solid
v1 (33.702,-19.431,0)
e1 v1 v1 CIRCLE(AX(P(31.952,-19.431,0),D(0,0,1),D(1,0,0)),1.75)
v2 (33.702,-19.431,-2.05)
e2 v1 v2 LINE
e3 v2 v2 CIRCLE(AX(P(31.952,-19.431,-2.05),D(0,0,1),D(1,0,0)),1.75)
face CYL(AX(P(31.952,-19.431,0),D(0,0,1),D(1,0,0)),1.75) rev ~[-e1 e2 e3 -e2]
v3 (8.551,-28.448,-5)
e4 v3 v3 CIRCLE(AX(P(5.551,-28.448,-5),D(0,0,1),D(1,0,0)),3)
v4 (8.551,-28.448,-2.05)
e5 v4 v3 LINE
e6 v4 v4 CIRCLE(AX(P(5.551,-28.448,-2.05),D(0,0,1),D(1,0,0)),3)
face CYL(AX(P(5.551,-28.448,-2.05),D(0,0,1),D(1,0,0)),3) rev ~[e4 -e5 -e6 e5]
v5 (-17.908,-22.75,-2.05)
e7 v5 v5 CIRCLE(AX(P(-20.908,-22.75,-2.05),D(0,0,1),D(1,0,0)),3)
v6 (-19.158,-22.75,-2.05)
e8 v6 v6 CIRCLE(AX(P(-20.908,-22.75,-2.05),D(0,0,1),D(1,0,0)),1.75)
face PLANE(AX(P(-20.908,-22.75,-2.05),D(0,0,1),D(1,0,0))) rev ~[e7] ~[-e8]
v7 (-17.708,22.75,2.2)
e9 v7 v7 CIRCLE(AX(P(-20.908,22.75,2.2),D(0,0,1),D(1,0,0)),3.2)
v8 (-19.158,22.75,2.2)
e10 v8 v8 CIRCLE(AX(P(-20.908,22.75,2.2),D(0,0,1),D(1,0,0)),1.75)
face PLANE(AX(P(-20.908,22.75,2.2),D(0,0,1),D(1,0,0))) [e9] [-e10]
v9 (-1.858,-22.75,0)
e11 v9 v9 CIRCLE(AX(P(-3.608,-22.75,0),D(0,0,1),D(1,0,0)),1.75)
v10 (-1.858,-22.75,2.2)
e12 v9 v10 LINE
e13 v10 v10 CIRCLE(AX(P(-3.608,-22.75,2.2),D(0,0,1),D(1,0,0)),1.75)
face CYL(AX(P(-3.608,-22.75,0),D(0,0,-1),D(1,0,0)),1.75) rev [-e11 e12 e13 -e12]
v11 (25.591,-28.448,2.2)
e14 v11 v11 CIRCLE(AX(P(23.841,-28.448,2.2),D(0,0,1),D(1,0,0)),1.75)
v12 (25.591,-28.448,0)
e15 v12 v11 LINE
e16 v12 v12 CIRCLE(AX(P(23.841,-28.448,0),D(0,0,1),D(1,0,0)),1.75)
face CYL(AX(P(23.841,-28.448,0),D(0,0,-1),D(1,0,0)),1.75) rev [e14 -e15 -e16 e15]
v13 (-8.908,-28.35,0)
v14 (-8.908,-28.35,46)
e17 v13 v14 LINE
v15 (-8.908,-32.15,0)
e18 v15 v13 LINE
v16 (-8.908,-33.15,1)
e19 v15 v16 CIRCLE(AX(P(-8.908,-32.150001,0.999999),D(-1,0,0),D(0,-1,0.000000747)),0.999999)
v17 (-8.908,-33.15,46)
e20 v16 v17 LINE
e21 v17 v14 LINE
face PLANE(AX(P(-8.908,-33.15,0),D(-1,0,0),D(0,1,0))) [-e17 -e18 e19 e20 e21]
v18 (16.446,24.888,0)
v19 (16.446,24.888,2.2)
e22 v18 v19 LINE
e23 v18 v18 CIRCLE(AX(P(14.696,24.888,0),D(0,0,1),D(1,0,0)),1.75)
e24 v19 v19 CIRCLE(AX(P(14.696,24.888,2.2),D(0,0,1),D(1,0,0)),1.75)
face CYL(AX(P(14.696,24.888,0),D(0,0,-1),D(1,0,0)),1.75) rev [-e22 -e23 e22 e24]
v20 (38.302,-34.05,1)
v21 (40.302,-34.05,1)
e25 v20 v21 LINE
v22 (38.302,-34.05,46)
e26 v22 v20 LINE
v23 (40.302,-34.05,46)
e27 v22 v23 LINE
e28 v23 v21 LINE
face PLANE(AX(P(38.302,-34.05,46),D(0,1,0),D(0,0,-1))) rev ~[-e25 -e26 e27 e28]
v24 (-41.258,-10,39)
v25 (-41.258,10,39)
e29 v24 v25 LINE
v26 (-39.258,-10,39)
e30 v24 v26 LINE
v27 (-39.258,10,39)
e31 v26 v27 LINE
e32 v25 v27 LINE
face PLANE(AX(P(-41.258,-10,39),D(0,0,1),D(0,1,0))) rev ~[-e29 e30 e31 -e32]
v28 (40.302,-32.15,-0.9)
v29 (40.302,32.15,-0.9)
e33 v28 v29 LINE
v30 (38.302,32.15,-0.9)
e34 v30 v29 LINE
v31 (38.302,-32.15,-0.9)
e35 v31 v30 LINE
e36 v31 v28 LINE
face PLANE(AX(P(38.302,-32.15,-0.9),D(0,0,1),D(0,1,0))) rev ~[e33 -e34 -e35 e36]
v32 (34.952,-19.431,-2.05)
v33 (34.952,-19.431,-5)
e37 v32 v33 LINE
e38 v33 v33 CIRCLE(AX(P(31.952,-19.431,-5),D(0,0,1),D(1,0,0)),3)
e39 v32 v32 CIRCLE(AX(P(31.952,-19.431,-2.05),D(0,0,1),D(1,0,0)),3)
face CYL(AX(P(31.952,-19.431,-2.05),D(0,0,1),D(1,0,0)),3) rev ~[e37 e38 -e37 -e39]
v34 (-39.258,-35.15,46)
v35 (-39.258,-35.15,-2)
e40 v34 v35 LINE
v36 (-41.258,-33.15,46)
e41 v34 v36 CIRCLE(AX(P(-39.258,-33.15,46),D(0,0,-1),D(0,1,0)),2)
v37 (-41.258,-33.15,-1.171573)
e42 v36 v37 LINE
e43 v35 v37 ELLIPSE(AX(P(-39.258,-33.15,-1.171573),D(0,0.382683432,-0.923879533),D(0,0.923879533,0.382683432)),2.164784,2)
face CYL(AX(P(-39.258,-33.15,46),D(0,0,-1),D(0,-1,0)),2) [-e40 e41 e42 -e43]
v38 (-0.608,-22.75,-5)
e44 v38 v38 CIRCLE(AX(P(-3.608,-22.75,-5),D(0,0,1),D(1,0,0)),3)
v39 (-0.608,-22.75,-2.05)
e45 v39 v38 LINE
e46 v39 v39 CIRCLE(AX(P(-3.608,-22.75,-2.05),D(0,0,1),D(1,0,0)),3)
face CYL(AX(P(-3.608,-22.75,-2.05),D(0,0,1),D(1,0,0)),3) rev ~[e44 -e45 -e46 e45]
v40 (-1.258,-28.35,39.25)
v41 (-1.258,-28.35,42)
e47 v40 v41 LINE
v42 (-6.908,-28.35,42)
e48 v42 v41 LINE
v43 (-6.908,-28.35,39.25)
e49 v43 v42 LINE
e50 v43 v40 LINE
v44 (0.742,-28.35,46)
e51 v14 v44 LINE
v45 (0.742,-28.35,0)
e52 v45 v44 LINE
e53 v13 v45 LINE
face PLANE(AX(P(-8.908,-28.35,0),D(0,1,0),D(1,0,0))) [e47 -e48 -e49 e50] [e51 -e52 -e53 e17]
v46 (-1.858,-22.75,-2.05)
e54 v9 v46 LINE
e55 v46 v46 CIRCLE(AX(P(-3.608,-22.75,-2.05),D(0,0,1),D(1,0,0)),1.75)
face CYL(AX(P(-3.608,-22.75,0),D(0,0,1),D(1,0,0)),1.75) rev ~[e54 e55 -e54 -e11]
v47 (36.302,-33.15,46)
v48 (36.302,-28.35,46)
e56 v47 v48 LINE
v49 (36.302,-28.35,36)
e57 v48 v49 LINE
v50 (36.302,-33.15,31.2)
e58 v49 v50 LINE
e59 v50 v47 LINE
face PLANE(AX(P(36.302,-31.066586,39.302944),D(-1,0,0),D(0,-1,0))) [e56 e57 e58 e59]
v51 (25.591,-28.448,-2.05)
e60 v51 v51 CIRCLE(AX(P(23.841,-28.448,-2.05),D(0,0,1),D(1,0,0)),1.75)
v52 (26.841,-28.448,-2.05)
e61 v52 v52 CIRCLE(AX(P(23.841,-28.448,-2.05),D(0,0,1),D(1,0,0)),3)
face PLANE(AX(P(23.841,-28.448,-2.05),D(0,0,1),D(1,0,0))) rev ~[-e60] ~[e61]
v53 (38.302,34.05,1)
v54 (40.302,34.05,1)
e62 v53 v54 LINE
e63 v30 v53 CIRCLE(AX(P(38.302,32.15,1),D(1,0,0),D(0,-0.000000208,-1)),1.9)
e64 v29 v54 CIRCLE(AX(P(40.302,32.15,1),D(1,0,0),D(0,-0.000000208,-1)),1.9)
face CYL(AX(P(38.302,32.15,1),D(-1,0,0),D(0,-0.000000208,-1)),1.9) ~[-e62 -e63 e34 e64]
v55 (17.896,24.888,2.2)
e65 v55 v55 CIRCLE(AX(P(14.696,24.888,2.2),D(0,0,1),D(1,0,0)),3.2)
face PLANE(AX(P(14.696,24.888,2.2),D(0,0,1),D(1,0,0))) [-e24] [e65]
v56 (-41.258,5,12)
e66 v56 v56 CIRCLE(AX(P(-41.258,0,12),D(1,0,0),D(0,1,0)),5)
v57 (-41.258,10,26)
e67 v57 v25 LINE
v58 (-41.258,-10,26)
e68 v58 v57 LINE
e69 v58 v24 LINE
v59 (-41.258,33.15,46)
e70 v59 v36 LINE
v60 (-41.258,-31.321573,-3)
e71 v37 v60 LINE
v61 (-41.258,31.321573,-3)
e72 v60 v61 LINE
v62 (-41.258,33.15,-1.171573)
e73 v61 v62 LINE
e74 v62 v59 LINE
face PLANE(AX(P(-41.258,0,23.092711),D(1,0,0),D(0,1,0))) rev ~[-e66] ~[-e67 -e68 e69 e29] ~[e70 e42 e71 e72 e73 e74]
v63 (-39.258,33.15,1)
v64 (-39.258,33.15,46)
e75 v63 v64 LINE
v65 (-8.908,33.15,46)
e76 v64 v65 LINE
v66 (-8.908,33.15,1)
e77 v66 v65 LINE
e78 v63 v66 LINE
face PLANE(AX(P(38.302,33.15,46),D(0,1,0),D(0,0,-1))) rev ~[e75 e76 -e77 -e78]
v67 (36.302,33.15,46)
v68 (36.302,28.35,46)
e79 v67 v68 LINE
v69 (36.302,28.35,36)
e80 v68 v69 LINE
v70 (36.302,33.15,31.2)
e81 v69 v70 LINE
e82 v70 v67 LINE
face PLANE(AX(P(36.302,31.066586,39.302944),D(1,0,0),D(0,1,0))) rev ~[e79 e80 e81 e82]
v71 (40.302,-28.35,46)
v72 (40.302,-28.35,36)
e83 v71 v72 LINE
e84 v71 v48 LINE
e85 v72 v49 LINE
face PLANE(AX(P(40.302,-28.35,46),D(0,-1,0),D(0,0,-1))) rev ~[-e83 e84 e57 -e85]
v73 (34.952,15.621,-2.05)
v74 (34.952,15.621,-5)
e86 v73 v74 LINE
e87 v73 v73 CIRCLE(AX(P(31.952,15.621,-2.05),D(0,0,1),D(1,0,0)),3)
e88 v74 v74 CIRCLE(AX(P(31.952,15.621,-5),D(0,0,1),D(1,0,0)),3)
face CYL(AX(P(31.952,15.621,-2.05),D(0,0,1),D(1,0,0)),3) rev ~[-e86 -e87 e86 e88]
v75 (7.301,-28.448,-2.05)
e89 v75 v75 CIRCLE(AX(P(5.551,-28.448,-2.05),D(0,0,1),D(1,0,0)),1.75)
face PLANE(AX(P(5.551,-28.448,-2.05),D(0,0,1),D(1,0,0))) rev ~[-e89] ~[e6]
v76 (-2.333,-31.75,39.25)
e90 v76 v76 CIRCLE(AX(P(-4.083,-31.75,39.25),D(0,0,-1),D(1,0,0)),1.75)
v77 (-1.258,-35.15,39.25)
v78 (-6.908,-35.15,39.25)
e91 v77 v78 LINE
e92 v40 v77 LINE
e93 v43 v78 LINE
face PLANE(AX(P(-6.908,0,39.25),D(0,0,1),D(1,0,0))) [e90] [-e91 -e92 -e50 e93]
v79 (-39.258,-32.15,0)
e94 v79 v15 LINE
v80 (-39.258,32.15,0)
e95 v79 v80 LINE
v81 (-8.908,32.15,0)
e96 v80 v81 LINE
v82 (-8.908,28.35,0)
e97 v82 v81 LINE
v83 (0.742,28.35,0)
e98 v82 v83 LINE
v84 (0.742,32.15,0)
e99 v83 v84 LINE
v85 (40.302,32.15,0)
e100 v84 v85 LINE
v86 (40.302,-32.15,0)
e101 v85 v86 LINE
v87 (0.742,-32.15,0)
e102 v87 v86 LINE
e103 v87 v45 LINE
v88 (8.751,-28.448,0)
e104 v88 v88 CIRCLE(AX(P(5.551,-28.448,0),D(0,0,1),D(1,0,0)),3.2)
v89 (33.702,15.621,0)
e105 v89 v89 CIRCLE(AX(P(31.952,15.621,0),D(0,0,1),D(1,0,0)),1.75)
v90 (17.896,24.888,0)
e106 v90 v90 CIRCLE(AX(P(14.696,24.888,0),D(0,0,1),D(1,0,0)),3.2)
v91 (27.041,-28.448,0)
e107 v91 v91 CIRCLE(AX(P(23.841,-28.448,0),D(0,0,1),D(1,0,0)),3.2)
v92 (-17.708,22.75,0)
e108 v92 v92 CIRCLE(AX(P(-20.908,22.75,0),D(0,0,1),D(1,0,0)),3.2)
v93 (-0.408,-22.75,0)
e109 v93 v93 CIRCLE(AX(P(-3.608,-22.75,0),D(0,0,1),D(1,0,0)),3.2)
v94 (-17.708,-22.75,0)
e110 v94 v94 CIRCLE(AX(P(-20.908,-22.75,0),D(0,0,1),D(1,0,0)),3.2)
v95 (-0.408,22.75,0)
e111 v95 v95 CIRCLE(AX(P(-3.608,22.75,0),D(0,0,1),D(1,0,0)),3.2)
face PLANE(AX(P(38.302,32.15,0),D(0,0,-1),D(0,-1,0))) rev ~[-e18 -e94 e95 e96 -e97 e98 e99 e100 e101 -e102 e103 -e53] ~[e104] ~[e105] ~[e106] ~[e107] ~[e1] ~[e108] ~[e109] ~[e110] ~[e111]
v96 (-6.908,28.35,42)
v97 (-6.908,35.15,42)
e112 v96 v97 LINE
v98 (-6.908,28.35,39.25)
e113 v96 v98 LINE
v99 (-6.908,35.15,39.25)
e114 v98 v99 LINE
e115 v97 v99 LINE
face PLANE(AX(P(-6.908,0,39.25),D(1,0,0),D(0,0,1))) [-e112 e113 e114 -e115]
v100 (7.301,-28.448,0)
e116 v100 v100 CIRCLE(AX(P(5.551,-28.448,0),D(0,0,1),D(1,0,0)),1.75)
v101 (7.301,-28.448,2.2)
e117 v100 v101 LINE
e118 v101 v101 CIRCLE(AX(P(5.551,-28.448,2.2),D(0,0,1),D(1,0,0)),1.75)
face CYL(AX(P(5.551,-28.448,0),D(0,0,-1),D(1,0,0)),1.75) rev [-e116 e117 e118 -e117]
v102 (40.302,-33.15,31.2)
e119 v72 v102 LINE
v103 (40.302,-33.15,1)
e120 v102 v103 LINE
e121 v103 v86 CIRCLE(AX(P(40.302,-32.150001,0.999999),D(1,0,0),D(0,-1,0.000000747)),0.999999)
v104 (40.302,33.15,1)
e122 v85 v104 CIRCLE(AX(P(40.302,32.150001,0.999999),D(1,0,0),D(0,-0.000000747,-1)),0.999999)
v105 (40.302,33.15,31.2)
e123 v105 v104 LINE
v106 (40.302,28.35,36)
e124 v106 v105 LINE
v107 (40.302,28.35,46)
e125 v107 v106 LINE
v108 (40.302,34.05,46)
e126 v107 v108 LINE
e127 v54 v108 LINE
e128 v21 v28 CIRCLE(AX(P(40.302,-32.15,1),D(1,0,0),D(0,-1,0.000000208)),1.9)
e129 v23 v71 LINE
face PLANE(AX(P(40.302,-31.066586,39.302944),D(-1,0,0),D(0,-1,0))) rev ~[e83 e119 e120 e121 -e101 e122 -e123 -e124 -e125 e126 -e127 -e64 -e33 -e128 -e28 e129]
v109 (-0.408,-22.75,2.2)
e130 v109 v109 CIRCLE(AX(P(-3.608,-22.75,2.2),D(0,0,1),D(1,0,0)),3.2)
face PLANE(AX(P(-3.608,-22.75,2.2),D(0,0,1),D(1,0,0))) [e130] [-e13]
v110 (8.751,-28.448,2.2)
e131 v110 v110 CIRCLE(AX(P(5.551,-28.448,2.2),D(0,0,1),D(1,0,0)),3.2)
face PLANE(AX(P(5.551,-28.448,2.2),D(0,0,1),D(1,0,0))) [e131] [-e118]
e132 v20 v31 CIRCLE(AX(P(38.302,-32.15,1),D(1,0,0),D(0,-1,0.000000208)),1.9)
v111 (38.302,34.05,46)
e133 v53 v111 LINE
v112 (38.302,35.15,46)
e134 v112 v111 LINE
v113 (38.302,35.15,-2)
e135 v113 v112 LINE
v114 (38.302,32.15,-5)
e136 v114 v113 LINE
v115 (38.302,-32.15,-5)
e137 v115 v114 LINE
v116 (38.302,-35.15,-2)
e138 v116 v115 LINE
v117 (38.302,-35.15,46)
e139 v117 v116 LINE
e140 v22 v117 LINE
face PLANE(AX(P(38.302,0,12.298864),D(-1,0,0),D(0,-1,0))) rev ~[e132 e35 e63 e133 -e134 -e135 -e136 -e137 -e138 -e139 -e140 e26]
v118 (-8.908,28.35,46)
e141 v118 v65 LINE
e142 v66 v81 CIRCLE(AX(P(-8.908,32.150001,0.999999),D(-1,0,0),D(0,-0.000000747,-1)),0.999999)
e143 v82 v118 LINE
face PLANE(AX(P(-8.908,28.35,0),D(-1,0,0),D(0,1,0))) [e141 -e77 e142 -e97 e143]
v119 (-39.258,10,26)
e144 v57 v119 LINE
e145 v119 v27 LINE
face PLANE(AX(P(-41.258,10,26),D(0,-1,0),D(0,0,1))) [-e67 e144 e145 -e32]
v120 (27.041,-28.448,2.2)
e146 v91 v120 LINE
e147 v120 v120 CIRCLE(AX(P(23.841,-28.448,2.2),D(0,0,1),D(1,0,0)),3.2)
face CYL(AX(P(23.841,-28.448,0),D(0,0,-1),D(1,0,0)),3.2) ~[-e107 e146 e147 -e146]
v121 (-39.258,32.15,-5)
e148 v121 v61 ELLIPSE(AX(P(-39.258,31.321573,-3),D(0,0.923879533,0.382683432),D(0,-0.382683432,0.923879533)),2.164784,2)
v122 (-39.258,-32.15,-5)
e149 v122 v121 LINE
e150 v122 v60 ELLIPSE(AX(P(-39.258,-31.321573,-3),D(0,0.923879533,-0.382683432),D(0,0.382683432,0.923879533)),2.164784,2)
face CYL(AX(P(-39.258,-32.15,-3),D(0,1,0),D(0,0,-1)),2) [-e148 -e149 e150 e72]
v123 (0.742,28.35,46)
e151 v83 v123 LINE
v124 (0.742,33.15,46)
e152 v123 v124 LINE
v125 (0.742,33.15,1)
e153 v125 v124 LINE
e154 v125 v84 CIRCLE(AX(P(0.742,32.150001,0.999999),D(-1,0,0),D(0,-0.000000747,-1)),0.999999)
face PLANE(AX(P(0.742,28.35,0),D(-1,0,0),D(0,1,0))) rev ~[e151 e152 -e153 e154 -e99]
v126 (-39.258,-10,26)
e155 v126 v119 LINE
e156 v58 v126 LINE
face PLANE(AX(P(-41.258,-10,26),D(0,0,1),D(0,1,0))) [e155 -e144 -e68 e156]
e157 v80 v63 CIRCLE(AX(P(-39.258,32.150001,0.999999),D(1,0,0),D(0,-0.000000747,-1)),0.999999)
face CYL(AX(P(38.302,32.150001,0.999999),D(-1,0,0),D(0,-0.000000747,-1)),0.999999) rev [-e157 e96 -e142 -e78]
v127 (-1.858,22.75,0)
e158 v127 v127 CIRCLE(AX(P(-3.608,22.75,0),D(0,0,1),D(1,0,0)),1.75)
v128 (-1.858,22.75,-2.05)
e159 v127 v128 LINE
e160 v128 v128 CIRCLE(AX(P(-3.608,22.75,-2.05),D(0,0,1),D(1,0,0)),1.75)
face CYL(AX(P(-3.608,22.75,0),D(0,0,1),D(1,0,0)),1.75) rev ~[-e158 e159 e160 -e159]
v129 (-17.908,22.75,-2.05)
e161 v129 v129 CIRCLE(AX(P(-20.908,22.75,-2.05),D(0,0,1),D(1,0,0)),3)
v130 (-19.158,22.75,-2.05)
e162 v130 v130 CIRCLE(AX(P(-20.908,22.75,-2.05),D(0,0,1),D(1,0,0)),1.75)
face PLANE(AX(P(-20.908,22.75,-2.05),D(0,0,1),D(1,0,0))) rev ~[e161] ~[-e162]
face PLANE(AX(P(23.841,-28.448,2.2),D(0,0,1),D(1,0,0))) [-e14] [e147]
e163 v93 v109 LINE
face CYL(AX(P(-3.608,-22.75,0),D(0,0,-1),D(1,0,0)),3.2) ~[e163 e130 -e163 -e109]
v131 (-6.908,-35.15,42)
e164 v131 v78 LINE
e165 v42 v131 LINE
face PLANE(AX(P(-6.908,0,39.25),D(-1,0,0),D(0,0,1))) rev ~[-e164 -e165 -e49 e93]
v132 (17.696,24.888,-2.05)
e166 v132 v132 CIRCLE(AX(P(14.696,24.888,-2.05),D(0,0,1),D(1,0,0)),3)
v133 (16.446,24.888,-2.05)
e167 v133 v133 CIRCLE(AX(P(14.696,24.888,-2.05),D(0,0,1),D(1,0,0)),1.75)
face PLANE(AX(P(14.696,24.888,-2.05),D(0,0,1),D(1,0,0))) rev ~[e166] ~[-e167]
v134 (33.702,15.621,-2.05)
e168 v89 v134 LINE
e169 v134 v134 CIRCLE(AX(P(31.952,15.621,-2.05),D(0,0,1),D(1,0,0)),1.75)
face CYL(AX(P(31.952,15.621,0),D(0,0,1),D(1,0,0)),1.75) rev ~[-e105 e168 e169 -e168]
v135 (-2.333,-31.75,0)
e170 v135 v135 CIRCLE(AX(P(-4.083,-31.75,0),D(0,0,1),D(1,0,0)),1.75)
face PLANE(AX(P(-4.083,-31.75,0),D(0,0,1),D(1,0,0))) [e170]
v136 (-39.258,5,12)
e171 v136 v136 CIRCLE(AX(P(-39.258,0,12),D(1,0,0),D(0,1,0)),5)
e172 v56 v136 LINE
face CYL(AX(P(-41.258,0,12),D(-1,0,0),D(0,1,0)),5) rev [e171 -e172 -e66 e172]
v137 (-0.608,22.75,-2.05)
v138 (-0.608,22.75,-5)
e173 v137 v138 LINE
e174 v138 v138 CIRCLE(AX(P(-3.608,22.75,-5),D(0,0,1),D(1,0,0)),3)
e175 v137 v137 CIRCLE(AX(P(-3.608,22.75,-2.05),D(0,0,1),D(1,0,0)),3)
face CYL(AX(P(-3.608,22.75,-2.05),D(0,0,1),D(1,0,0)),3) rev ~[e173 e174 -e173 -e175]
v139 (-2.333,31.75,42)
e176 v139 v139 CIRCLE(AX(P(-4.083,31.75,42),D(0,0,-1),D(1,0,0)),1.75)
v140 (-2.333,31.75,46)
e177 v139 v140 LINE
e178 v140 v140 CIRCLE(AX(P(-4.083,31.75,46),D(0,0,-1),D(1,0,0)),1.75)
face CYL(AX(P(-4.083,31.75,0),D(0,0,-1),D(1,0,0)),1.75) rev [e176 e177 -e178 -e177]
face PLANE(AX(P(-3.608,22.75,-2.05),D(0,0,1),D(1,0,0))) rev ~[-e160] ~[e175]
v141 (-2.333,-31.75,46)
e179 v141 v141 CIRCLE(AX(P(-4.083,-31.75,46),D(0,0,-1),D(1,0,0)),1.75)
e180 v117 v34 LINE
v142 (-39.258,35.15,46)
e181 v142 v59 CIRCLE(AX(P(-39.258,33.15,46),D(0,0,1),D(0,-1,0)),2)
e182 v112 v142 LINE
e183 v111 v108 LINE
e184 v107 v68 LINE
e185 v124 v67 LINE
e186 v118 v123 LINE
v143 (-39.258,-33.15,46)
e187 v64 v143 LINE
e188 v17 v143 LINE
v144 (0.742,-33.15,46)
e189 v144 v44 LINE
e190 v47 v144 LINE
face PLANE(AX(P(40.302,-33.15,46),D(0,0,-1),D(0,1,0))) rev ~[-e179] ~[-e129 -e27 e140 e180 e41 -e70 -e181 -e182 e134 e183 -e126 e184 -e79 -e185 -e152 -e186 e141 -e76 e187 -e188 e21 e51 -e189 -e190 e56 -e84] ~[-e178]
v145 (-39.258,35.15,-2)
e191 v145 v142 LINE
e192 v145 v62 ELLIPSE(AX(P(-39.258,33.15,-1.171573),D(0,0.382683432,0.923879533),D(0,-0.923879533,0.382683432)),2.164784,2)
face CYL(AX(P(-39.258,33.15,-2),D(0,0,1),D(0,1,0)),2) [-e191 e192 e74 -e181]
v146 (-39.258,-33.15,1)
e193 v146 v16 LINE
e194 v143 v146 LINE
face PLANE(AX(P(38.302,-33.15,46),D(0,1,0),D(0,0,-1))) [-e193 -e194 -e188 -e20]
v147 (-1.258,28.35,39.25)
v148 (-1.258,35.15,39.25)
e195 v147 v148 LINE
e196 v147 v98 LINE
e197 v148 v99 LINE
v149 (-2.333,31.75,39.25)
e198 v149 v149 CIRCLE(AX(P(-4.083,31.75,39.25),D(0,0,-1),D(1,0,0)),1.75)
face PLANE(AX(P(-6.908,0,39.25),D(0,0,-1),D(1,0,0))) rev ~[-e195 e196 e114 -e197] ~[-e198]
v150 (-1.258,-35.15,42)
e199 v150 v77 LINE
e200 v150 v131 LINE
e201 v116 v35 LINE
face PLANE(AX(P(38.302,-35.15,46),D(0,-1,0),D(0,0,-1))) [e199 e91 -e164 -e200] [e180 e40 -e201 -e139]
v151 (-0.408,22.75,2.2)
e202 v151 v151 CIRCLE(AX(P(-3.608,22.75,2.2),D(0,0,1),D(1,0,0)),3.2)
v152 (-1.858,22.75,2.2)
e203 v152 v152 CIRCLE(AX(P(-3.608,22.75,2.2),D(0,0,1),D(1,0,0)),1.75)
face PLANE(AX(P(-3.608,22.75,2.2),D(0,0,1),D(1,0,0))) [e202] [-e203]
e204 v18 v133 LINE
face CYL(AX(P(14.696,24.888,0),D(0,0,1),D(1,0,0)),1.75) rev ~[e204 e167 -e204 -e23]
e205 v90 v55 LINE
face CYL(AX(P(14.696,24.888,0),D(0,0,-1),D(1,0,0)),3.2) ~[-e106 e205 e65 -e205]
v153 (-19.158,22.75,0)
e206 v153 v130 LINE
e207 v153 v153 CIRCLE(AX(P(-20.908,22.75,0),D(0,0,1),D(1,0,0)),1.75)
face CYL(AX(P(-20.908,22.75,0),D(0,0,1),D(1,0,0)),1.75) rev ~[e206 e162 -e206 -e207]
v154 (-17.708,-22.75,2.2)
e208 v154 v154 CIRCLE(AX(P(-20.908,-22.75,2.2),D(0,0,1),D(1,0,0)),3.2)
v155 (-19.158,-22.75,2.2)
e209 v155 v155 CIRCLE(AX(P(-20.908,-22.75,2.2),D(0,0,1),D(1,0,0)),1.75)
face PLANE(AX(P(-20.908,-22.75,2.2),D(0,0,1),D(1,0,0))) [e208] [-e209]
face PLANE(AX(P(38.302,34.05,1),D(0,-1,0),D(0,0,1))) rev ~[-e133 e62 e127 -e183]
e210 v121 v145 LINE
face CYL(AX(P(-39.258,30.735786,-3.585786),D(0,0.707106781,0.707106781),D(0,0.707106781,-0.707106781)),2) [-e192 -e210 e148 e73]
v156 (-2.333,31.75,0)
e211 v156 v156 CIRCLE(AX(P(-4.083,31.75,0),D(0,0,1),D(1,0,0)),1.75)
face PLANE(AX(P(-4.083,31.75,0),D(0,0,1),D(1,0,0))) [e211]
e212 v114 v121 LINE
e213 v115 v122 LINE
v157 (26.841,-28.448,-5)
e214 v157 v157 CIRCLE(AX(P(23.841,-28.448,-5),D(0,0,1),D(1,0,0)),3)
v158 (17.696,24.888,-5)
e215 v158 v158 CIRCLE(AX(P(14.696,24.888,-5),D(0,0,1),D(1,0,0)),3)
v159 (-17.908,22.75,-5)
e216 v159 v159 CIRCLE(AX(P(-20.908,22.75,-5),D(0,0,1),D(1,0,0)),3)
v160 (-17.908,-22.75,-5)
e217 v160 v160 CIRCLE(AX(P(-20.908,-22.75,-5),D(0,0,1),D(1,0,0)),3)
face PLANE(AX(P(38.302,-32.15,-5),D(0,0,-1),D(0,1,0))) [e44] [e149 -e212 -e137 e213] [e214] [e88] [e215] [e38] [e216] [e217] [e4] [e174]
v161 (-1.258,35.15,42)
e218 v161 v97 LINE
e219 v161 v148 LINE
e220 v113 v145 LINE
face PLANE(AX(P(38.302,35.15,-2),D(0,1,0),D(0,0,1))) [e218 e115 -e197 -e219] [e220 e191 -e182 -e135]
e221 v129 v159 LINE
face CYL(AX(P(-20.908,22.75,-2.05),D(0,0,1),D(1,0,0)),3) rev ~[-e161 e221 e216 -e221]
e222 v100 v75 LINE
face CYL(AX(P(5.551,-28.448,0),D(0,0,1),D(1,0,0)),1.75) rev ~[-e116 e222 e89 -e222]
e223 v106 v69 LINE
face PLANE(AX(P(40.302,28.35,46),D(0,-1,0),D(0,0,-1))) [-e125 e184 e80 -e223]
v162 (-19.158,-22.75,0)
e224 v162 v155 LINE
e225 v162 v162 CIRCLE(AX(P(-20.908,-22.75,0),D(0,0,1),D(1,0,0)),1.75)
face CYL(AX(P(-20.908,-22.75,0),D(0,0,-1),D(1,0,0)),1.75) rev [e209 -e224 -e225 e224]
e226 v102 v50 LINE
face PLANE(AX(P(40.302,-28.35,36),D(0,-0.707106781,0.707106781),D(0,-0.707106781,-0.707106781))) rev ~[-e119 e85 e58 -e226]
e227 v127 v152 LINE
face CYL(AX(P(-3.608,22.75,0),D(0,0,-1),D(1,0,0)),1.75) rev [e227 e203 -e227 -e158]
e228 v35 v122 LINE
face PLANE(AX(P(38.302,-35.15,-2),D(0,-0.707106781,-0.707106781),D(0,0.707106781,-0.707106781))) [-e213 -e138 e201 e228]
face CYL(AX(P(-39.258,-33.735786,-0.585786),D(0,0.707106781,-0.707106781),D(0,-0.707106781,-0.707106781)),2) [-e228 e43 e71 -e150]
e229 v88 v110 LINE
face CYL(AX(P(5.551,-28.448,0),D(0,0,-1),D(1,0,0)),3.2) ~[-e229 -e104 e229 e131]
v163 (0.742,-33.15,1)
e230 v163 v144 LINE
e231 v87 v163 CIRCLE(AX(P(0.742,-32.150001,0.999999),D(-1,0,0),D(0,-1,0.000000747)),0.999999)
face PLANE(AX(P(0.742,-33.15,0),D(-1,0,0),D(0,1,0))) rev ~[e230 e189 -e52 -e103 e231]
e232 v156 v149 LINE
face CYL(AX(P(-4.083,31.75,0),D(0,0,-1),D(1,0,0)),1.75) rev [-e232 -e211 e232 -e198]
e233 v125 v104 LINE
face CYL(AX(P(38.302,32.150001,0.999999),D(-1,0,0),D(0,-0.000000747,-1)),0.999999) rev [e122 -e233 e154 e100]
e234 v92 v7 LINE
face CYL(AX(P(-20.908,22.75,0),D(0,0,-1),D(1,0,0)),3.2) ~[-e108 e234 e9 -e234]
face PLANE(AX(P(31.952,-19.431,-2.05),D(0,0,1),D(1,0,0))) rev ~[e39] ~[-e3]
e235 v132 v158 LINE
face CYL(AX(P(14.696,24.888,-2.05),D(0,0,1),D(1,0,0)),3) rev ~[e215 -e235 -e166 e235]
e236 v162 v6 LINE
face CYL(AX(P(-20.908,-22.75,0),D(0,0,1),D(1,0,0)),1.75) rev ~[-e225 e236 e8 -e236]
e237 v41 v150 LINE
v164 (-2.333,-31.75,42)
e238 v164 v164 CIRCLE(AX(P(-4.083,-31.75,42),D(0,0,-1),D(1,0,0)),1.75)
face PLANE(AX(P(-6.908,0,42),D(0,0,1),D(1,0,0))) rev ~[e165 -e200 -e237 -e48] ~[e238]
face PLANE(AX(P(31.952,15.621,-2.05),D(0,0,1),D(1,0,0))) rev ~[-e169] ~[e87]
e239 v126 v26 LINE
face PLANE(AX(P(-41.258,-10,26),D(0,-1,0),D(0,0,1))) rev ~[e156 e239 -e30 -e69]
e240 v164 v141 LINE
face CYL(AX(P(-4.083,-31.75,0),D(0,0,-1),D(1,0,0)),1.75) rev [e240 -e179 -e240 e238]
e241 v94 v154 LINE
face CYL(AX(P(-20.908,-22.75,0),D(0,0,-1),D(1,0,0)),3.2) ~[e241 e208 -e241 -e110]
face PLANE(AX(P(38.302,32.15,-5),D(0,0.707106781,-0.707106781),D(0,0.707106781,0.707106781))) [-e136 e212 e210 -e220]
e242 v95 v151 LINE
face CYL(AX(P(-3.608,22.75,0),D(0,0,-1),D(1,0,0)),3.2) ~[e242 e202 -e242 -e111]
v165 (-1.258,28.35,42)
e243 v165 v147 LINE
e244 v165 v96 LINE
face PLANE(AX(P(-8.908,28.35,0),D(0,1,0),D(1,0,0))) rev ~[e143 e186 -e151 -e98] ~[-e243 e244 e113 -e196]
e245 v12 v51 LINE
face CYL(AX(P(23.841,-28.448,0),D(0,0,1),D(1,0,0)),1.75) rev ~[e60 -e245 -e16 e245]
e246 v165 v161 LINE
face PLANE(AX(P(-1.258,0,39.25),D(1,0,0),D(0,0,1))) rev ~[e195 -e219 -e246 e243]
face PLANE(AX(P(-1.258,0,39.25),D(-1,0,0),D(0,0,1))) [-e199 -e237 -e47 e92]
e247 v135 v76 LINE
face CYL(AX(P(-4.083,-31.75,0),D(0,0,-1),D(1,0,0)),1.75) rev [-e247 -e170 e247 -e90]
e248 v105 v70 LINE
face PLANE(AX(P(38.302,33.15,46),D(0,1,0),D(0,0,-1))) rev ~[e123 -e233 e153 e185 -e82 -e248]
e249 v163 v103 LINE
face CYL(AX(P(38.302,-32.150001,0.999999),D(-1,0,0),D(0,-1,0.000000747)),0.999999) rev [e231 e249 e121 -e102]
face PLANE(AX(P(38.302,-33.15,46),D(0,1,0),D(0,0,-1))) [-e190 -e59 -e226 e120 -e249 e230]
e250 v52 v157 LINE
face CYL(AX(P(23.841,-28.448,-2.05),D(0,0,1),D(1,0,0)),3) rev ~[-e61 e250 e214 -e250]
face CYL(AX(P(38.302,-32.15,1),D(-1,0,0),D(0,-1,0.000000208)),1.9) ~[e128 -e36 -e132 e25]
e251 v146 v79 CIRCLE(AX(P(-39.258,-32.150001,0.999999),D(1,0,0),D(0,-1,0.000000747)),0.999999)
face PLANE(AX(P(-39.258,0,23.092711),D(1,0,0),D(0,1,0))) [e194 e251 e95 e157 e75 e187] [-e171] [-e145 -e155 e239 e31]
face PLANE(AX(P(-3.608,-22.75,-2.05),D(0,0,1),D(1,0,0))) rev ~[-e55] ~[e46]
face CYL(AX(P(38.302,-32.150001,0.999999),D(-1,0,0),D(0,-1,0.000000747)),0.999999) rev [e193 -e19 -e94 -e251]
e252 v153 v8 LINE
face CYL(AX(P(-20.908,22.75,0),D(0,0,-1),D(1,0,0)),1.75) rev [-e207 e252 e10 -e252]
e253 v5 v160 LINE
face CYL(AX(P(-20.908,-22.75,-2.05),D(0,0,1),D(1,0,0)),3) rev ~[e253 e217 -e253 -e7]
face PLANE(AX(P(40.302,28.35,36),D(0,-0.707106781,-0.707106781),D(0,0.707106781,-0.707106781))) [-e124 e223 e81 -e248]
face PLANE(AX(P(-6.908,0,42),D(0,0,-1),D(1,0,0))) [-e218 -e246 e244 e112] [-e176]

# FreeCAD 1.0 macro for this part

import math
import FreeCAD as App
import Part
import Sketcher
from FreeCAD import Vector


def edges_at(feature, points):
    """Names of the edges that pass closest to the given points."""
    edges = feature.Shape.Edges
    near = lambda p: min(range(len(edges)), key=lambda i: edges[i].distToShape(Part.Vertex(*p))[0])
    return sorted({f"Edge{near(p) + 1}" for p in points})


def add_polygon(sketch, points):
    """Adds a closed chain of lines whose ends are joined by coincident constraints."""
    first, n = sketch.GeometryCount, len(points)
    for a, b in zip(points, points[1:] + points[:1]):
        sketch.addGeometry(Part.LineSegment(App.Vector(*a, 0), App.Vector(*b, 0)), False)
    for i in range(n):
        sketch.addConstraint(Sketcher.Constraint("Coincident", first + i, 2, first + (i + 1) % n, 1))

doc = App.newDocument("Part")
body = doc.addObject("PartDesign::Body", "Body")

# Sketch on YZ plane
sketch1 = body.newObject("Sketcher::SketchObject", "Sketch")
sketch1.AttachmentSupport = (doc.getObject("YZ_Plane"), [""])
sketch1.MapMode = "FlatFace"
sketch1.AttachmentOffset = App.Placement(Vector(0, 0, 38.302), App.Rotation())
sketch1.addGeometry([
    Part.ArcOfCircle(Part.Circle(Vector(-32.150001, 0.999999, 0), Vector(0, 0, 1), 0.999999), math.radians(179.999957), math.radians(270.000043)),  # 0
    Part.LineSegment(Vector(-33.15, 1, 0), Vector(-33.15, 46, 0)),  # 1
    Part.LineSegment(Vector(-33.15, 46, 0), Vector(-35.15, 46, 0)),  # 2
    Part.LineSegment(Vector(-35.15, 46, 0), Vector(-35.15, -2, 0)),  # 3
    Part.LineSegment(Vector(-35.15, -2, 0), Vector(-32.15, -5, 0)),  # 4
    Part.LineSegment(Vector(-32.15, -5, 0), Vector(32.15, -5, 0)),  # 5
    Part.LineSegment(Vector(32.15, -5, 0), Vector(35.15, -2, 0)),  # 6
    Part.LineSegment(Vector(35.15, -2, 0), Vector(35.15, 46, 0)),  # 7
    Part.LineSegment(Vector(35.15, 46, 0), Vector(33.15, 46, 0)),  # 8
    Part.LineSegment(Vector(33.15, 46, 0), Vector(33.15, 1, 0)),  # 9
    Part.ArcOfCircle(Part.Circle(Vector(32.150001, 0.999999, 0), Vector(0, 0, 1), 0.999999), math.radians(-90.000043), math.radians(0.000043)),  # 10
    Part.LineSegment(Vector(32.15, 0, 0), Vector(-32.15, 0, 0)),  # 11
], False)
sketch1.addConstraint([
    Sketcher.Constraint("Tangent", 0, 1, 1, 1),
    Sketcher.Constraint("Coincident", 1, 2, 2, 1),
    Sketcher.Constraint("Coincident", 2, 2, 3, 1),
    Sketcher.Constraint("Coincident", 3, 2, 4, 1),
    Sketcher.Constraint("Coincident", 4, 2, 5, 1),
    Sketcher.Constraint("Coincident", 5, 2, 6, 1),
    Sketcher.Constraint("Coincident", 6, 2, 7, 1),
    Sketcher.Constraint("Coincident", 7, 2, 8, 1),
    Sketcher.Constraint("Coincident", 8, 2, 9, 1),
    Sketcher.Constraint("Tangent", 9, 2, 10, 2),
    Sketcher.Constraint("Tangent", 10, 1, 11, 1),
    Sketcher.Constraint("Tangent", 11, 2, 0, 2),
    Sketcher.Constraint("Vertical", 1),
    Sketcher.Constraint("Horizontal", 2),
    Sketcher.Constraint("Vertical", 3),
    Sketcher.Constraint("Horizontal", 5),
    Sketcher.Constraint("Vertical", 7),
    Sketcher.Constraint("Horizontal", 8),
    Sketcher.Constraint("Vertical", 9),
    Sketcher.Constraint("Horizontal", 11),
    Sketcher.Constraint("Equal", 0, 10),
    Sketcher.Constraint("Symmetric", 10, 1, 11, 2, -1, 1),
    Sketcher.Constraint("Symmetric", 3, 2, 6, 2, -2),
    Sketcher.Constraint("Perpendicular", 4, 6),
    Sketcher.Constraint("Horizontal", 2, 2, 7, 2),
    Sketcher.Constraint("Vertical", 0, 3, 4, 2),
    Sketcher.Constraint("Vertical", 10, 3, 5, 2),
    Sketcher.Constraint("Radius", 0, 0.999999),
    Sketcher.Constraint("DistanceX", 2, 2, 2, 1, 2.0),
    Sketcher.Constraint("DistanceY", 1, 1, 1, 2, 45.0),
    Sketcher.Constraint("DistanceY", 3, 2, 3, 1, 48.0),
    Sketcher.Constraint("DistanceX", 5, 1, 5, 2, 64.3),
])
pad1 = body.newObject("PartDesign::Pad", "Pad")
pad1.Profile = sketch1
pad1.Length = 79.56
pad1.Reversed = True

# Sketch on YZ plane
sketch2 = body.newObject("Sketcher::SketchObject", "Sketch001")
sketch2.AttachmentSupport = (doc.getObject("YZ_Plane"), [""])
sketch2.MapMode = "FlatFace"
sketch2.AttachmentOffset = App.Placement(Vector(0, 0, 38.302), App.Rotation())
sketch2.addGeometry([
    Part.ArcOfCircle(Part.Circle(Vector(-32.15, 1, 0), Vector(0, 0, 1), 1.9), math.radians(179.999988), math.radians(270.000012)),  # 0
    Part.LineSegment(Vector(-32.15, -0.9, 0), Vector(32.15, -0.9, 0)),  # 1
    Part.ArcOfCircle(Part.Circle(Vector(32.15, 1, 0), Vector(0, 0, 1), 1.9), math.radians(-90.000012), math.radians(0.000012)),  # 2
    Part.LineSegment(Vector(34.05, 1, 0), Vector(34.05, 46, 0)),  # 3
    Part.LineSegment(Vector(34.05, 46, 0), Vector(33.15, 46, 0)),  # 4
    Part.LineSegment(Vector(33.15, 46, 0), Vector(33.15, 1, 0)),  # 5
    Part.ArcOfCircle(Part.Circle(Vector(32.150001, 0.999999, 0), Vector(0, 0, 1), 0.999999), math.radians(-90.000043), math.radians(0.000043)),  # 6
    Part.LineSegment(Vector(32.15, 0, 0), Vector(-32.15, 0, 0)),  # 7
    Part.ArcOfCircle(Part.Circle(Vector(-32.150001, 0.999999, 0), Vector(0, 0, 1), 0.999999), math.radians(179.999957), math.radians(270.000043)),  # 8
    Part.LineSegment(Vector(-33.15, 1, 0), Vector(-33.15, 46, 0)),  # 9
    Part.LineSegment(Vector(-33.15, 46, 0), Vector(-34.05, 46, 0)),  # 10
    Part.LineSegment(Vector(-34.05, 46, 0), Vector(-34.05, 1, 0)),  # 11
], False)
sketch2.addConstraint([
    Sketcher.Constraint("Tangent", 0, 2, 1, 1),
    Sketcher.Constraint("Tangent", 1, 2, 2, 1),
    Sketcher.Constraint("Tangent", 2, 2, 3, 1),
    Sketcher.Constraint("Coincident", 3, 2, 4, 1),
    Sketcher.Constraint("Coincident", 4, 2, 5, 1),
    Sketcher.Constraint("Tangent", 5, 2, 6, 2),
    Sketcher.Constraint("Tangent", 6, 1, 7, 1),
    Sketcher.Constraint("Tangent", 7, 2, 8, 2),
    Sketcher.Constraint("Tangent", 8, 1, 9, 1),
    Sketcher.Constraint("Coincident", 9, 2, 10, 1),
    Sketcher.Constraint("Coincident", 10, 2, 11, 1),
    Sketcher.Constraint("Tangent", 11, 2, 0, 1),
    Sketcher.Constraint("Horizontal", 1),
    Sketcher.Constraint("Vertical", 3),
    Sketcher.Constraint("Horizontal", 4),
    Sketcher.Constraint("Vertical", 5),
    Sketcher.Constraint("Horizontal", 7),
    Sketcher.Constraint("Vertical", 9),
    Sketcher.Constraint("Horizontal", 10),
    Sketcher.Constraint("Vertical", 11),
    Sketcher.Constraint("Coincident", 6, 3, 2, 3),
    Sketcher.Constraint("Coincident", 8, 3, 0, 3),
    Sketcher.Constraint("Equal", 0, 2),
    Sketcher.Constraint("Symmetric", 6, 1, 7, 2, -1, 1),
    Sketcher.Constraint("Horizontal", 4, 2, 9, 2),
    Sketcher.Constraint("Radius", 6, 0.999999),
    Sketcher.Constraint("Radius", 0, 1.9),
    Sketcher.Constraint("DistanceY", 3, 1, 3, 2, 45.0),
    Sketcher.Constraint("DistanceX", 1, 1, 1, 2, 64.3),
])
pad2 = body.newObject("PartDesign::Pad", "Pad001")
pad2.Profile = sketch2
pad2.Length = 2

# Sketch on YZ plane
sketch3 = body.newObject("Sketcher::SketchObject", "Sketch002")
sketch3.AttachmentSupport = (doc.getObject("YZ_Plane"), [""])
sketch3.MapMode = "FlatFace"
sketch3.AttachmentOffset = App.Placement(Vector(0, 0, -41.258), App.Rotation())
sketch3.addGeometry(Part.ArcOfCircle(Part.Circle(Vector(-32.150001, 0.999999, 0), Vector(0, 0, 1), 0.999999), math.radians(179.999957), math.radians(270.000043)), False)  # 0
sketch3.addGeometry(Part.LineSegment(Vector(-32.15, 0, 0), Vector(32.15, 0, 0)), False)  # 1
sketch3.addGeometry(Part.ArcOfCircle(Part.Circle(Vector(32.150001, 0.999999, 0), Vector(0, 0, 1), 0.999999), math.radians(-90.000043), math.radians(0.000043)), False)  # 2
sketch3.addGeometry(Part.LineSegment(Vector(33.15, 1, 0), Vector(33.15, 46, 0)), False)  # 3
sketch3.addGeometry(Part.LineSegment(Vector(33.15, 46, 0), Vector(-33.15, 46, 0)), False)  # 4
sketch3.addGeometry(Part.LineSegment(Vector(-33.15, 46, 0), Vector(-33.15, 1, 0)), False)  # 5
sketch3.addGeometry(Part.Circle(Vector(0, 12, 0), Vector(0, 0, 1), 5), False)  # 6
add_polygon(sketch3, [(10, 26), (-10, 26), (-10, 39), (10, 39)])  # lines 7-10
sketch3.addConstraint([
    Sketcher.Constraint("Tangent", 0, 2, 1, 1),
    Sketcher.Constraint("Tangent", 1, 2, 2, 1),
    Sketcher.Constraint("Tangent", 2, 2, 3, 1),
    Sketcher.Constraint("Coincident", 3, 2, 4, 1),
    Sketcher.Constraint("Coincident", 4, 2, 5, 1),
    Sketcher.Constraint("Tangent", 5, 2, 0, 1),
    Sketcher.Constraint("Horizontal", 1),
    Sketcher.Constraint("Vertical", 3),
    Sketcher.Constraint("Horizontal", 4),
    Sketcher.Constraint("Vertical", 5),
    Sketcher.Constraint("Horizontal", 7),
    Sketcher.Constraint("Vertical", 8),
    Sketcher.Constraint("Horizontal", 9),
    Sketcher.Constraint("Vertical", 10),
    Sketcher.Constraint("Equal", 0, 2),
    Sketcher.Constraint("Symmetric", 0, 2, 1, 2, -1, 1),
    Sketcher.Constraint("PointOnObject", 6, 3, -2),
    Sketcher.Constraint("Diameter", 6, 10.0),
    Sketcher.Constraint("Radius", 0, 0.999999),
    Sketcher.Constraint("DistanceX", 7, 2, 7, 1, 20.0),
    Sketcher.Constraint("DistanceY", 3, 1, 3, 2, 45.0),
    Sketcher.Constraint("DistanceY", 8, 1, 8, 2, 13.0),
    Sketcher.Constraint("DistanceX", 1, 1, 1, 2, 64.3),
    Sketcher.Constraint("DistanceY", -1, 1, 6, 3, 12.0),
    Sketcher.Constraint("DistanceX", 7, 2, -1, 1, 10.0),
    Sketcher.Constraint("DistanceY", -1, 1, 7, 2, 26.0),
])
pad3 = body.newObject("PartDesign::Pad", "Pad002")
pad3.Profile = sketch3
pad3.Length = 2
doc.recompute()

fillet = body.newObject("PartDesign::Fillet", "Fillet")
fillet.Base = (pad3, edges_at(pad3, [
    (-41.258, 35.15, 22),
    (-41.258, 33.65, -3.5),
    (-41.258, 0, -5),
    (-41.258, -33.65, -3.5),
    (-41.258, -35.15, 22),
]))
fillet.Radius = 2

# Sketch on XY plane
sketch4 = body.newObject("Sketcher::SketchObject", "Sketch003")
sketch4.AttachmentSupport = (doc.getObject("XY_Plane"), [""])
sketch4.MapMode = "FlatFace"
add_polygon(sketch4, [(-8.908, 33.15), (-8.908, 28.35), (0.742, 28.35), (0.742, 33.15)])  # lines 0-3
add_polygon(sketch4, [(-8.908, -28.35), (-8.908, -33.15), (0.742, -33.15), (0.742, -28.35)])  # lines 4-7
sketch4.addConstraint([
    Sketcher.Constraint("Vertical", 0),
    Sketcher.Constraint("Horizontal", 1),
    Sketcher.Constraint("Vertical", 2),
    Sketcher.Constraint("Horizontal", 3),
    Sketcher.Constraint("Vertical", 4),
    Sketcher.Constraint("Horizontal", 5),
    Sketcher.Constraint("Vertical", 6),
    Sketcher.Constraint("Horizontal", 7),
    Sketcher.Constraint("Symmetric", 3, 2, 4, 2, -1),
    Sketcher.Constraint("Symmetric", 1, 2, 6, 2, -1),
    Sketcher.Constraint("DistanceY", 0, 2, 0, 1, 4.8),
    Sketcher.Constraint("DistanceX", 1, 1, 1, 2, 9.65),
    Sketcher.Constraint("DistanceY", 4, 2, 0, 2, 61.5),
    Sketcher.Constraint("DistanceX", 0, 2, -1, 1, 8.908),
])
pad4 = body.newObject("PartDesign::Pad", "Pad003")
pad4.Profile = sketch4
pad4.Length = 46

# Sketch on XY plane
sketch5 = body.newObject("Sketcher::SketchObject", "Sketch004")
sketch5.AttachmentSupport = (doc.getObject("XY_Plane"), [""])
sketch5.MapMode = "FlatFace"
sketch5.addGeometry([
    Part.Circle(Vector(-4.083, 31.75, 0), Vector(0, 0, 1), 1.75),
    Part.Circle(Vector(-4.083, -31.75, 0), Vector(0, 0, 1), 1.75),
], False)
sketch5.addConstraint([
    Sketcher.Constraint("Equal", 0, 1),
    Sketcher.Constraint("Symmetric", 0, 3, 1, 3, -1),
    Sketcher.Constraint("Diameter", 0, 3.5),
    Sketcher.Constraint("DistanceY", 1, 3, 0, 3, 63.5),
    Sketcher.Constraint("DistanceX", 0, 3, -1, 1, 4.083),
])
pocket1 = body.newObject("PartDesign::Pocket", "Pocket")
pocket1.Profile = sketch5
pocket1.Type = "ThroughAll"
pocket1.Reversed = True

# Sketch on XY plane
sketch6 = body.newObject("Sketcher::SketchObject", "Sketch005")
sketch6.AttachmentSupport = (doc.getObject("XY_Plane"), [""])
sketch6.MapMode = "FlatFace"
sketch6.addGeometry([
    Part.Circle(Vector(-20.908, 22.75, 0), Vector(0, 0, 1), 1.75),  # 0
    Part.Circle(Vector(-3.608, 22.75, 0), Vector(0, 0, 1), 1.75),  # 1
    Part.Circle(Vector(14.696, 24.888, 0), Vector(0, 0, 1), 1.75),  # 2
    Part.Circle(Vector(31.952, 15.621, 0), Vector(0, 0, 1), 1.75),  # 3
    Part.Circle(Vector(31.952, -19.431, 0), Vector(0, 0, 1), 1.75),  # 4
    Part.Circle(Vector(23.841, -28.448, 0), Vector(0, 0, 1), 1.75),  # 5
    Part.Circle(Vector(5.551, -28.448, 0), Vector(0, 0, 1), 1.75),  # 6
    Part.Circle(Vector(-3.608, -22.75, 0), Vector(0, 0, 1), 1.75),  # 7
    Part.Circle(Vector(-20.908, -22.75, 0), Vector(0, 0, 1), 1.75),  # 8
], False)
sketch6.addConstraint([
    Sketcher.Constraint("Equal", 0, 1),
    Sketcher.Constraint("Equal", 1, 2),
    Sketcher.Constraint("Equal", 2, 3),
    Sketcher.Constraint("Equal", 3, 4),
    Sketcher.Constraint("Equal", 4, 5),
    Sketcher.Constraint("Equal", 5, 6),
    Sketcher.Constraint("Equal", 6, 7),
    Sketcher.Constraint("Equal", 7, 8),
    Sketcher.Constraint("Symmetric", 1, 3, 7, 3, -1),
    Sketcher.Constraint("Symmetric", 0, 3, 8, 3, -1),
    Sketcher.Constraint("Horizontal", 0, 3, 1, 3),
    Sketcher.Constraint("Horizontal", 5, 3, 6, 3),
    Sketcher.Constraint("Vertical", 3, 3, 4, 3),
    Sketcher.Constraint("Diameter", 0, 3.5),
    Sketcher.Constraint("DistanceX", 0, 3, 1, 3, 17.3),
    Sketcher.Constraint("DistanceY", 7, 3, 1, 3, 45.5),
    Sketcher.Constraint("DistanceX", 1, 3, 3, 3, 35.56),
    Sketcher.Constraint("DistanceX", 6, 3, 5, 3, 18.29),
    Sketcher.Constraint("DistanceX", 0, 3, -1, 1, 20.908),
    Sketcher.Constraint("DistanceX", -1, 1, 2, 3, 14.696),
    Sketcher.Constraint("DistanceY", -1, 1, 2, 3, 24.888),
    Sketcher.Constraint("DistanceY", -1, 1, 3, 3, 15.621),
    Sketcher.Constraint("DistanceY", 4, 3, -1, 1, 19.431),
    Sketcher.Constraint("DistanceX", -1, 1, 5, 3, 23.841),
    Sketcher.Constraint("DistanceY", 5, 3, -1, 1, 28.448),
])
pocket2 = body.newObject("PartDesign::Pocket", "Pocket001")
pocket2.Profile = sketch6
pocket2.Type = "ThroughAll"

# Sketch on XY plane
sketch7 = body.newObject("Sketcher::SketchObject", "Sketch006")
sketch7.AttachmentSupport = (doc.getObject("XY_Plane"), [""])
sketch7.MapMode = "FlatFace"
sketch7.AttachmentOffset = App.Placement(Vector(0, 0, -2.05), App.Rotation())
sketch7.addGeometry([
    Part.Circle(Vector(-20.908, 22.75, 0), Vector(0, 0, 1), 3),  # 0
    Part.Circle(Vector(-3.608, 22.75, 0), Vector(0, 0, 1), 3),  # 1
    Part.Circle(Vector(14.696, 24.888, 0), Vector(0, 0, 1), 3),  # 2
    Part.Circle(Vector(31.952, 15.621, 0), Vector(0, 0, 1), 3),  # 3
    Part.Circle(Vector(31.952, -19.431, 0), Vector(0, 0, 1), 3),  # 4
    Part.Circle(Vector(23.841, -28.448, 0), Vector(0, 0, 1), 3),  # 5
    Part.Circle(Vector(5.551, -28.448, 0), Vector(0, 0, 1), 3),  # 6
    Part.Circle(Vector(-3.608, -22.75, 0), Vector(0, 0, 1), 3),  # 7
    Part.Circle(Vector(-20.908, -22.75, 0), Vector(0, 0, 1), 3),  # 8
], False)
sketch7.addConstraint([
    Sketcher.Constraint("Equal", 0, 1),
    Sketcher.Constraint("Equal", 1, 2),
    Sketcher.Constraint("Equal", 2, 3),
    Sketcher.Constraint("Equal", 3, 4),
    Sketcher.Constraint("Equal", 4, 5),
    Sketcher.Constraint("Equal", 5, 6),
    Sketcher.Constraint("Equal", 6, 7),
    Sketcher.Constraint("Equal", 7, 8),
    Sketcher.Constraint("Symmetric", 1, 3, 7, 3, -1),
    Sketcher.Constraint("Symmetric", 0, 3, 8, 3, -1),
    Sketcher.Constraint("Horizontal", 0, 3, 1, 3),
    Sketcher.Constraint("Horizontal", 5, 3, 6, 3),
    Sketcher.Constraint("Vertical", 3, 3, 4, 3),
    Sketcher.Constraint("Diameter", 0, 6.0),
    Sketcher.Constraint("DistanceX", 0, 3, 1, 3, 17.3),
    Sketcher.Constraint("DistanceY", 7, 3, 1, 3, 45.5),
    Sketcher.Constraint("DistanceX", 1, 3, 3, 3, 35.56),
    Sketcher.Constraint("DistanceX", 6, 3, 5, 3, 18.29),
    Sketcher.Constraint("DistanceX", 0, 3, -1, 1, 20.908),
    Sketcher.Constraint("DistanceX", -1, 1, 2, 3, 14.696),
    Sketcher.Constraint("DistanceY", -1, 1, 2, 3, 24.888),
    Sketcher.Constraint("DistanceY", -1, 1, 3, 3, 15.621),
    Sketcher.Constraint("DistanceY", 4, 3, -1, 1, 19.431),
    Sketcher.Constraint("DistanceX", -1, 1, 5, 3, 23.841),
    Sketcher.Constraint("DistanceY", 5, 3, -1, 1, 28.448),
])
pocket3 = body.newObject("PartDesign::Pocket", "Pocket002")
pocket3.Profile = sketch7
pocket3.Type = "ThroughAll"

# Sketch on XY plane
sketch8 = body.newObject("Sketcher::SketchObject", "Sketch007")
sketch8.AttachmentSupport = (doc.getObject("XY_Plane"), [""])
sketch8.MapMode = "FlatFace"
sketch8.addGeometry([
    Part.Circle(Vector(-20.908, 22.75, 0), Vector(0, 0, 1), 3.2),  # 0
    Part.Circle(Vector(-20.908, 22.75, 0), Vector(0, 0, 1), 1.75),  # 1
    Part.Circle(Vector(-3.608, 22.75, 0), Vector(0, 0, 1), 3.2),  # 2
    Part.Circle(Vector(-3.608, 22.75, 0), Vector(0, 0, 1), 1.75),  # 3
    Part.Circle(Vector(14.696, 24.888, 0), Vector(0, 0, 1), 3.2),  # 4
    Part.Circle(Vector(14.696, 24.888, 0), Vector(0, 0, 1), 1.75),  # 5
    Part.Circle(Vector(23.841, -28.448, 0), Vector(0, 0, 1), 3.2),  # 6
    Part.Circle(Vector(23.841, -28.448, 0), Vector(0, 0, 1), 1.75),  # 7
    Part.Circle(Vector(5.551, -28.448, 0), Vector(0, 0, 1), 3.2),  # 8
    Part.Circle(Vector(5.551, -28.448, 0), Vector(0, 0, 1), 1.75),  # 9
    Part.Circle(Vector(-3.608, -22.75, 0), Vector(0, 0, 1), 3.2),  # 10
    Part.Circle(Vector(-3.608, -22.75, 0), Vector(0, 0, 1), 1.75),  # 11
    Part.Circle(Vector(-20.908, -22.75, 0), Vector(0, 0, 1), 3.2),  # 12
    Part.Circle(Vector(-20.908, -22.75, 0), Vector(0, 0, 1), 1.75),  # 13
], False)
sketch8.addConstraint([
    Sketcher.Constraint("Coincident", 1, 3, 0, 3),
    Sketcher.Constraint("Coincident", 3, 3, 2, 3),
    Sketcher.Constraint("Coincident", 5, 3, 4, 3),
    Sketcher.Constraint("Coincident", 7, 3, 6, 3),
    Sketcher.Constraint("Coincident", 9, 3, 8, 3),
    Sketcher.Constraint("Coincident", 11, 3, 10, 3),
    Sketcher.Constraint("Coincident", 13, 3, 12, 3),
    Sketcher.Constraint("Equal", 0, 2),
    Sketcher.Constraint("Equal", 1, 3),
    Sketcher.Constraint("Equal", 2, 4),
    Sketcher.Constraint("Equal", 3, 5),
    Sketcher.Constraint("Equal", 4, 6),
    Sketcher.Constraint("Equal", 5, 7),
    Sketcher.Constraint("Equal", 6, 8),
    Sketcher.Constraint("Equal", 7, 9),
    Sketcher.Constraint("Equal", 8, 10),
    Sketcher.Constraint("Equal", 9, 11),
    Sketcher.Constraint("Equal", 10, 12),
    Sketcher.Constraint("Equal", 11, 13),
    Sketcher.Constraint("Symmetric", 2, 3, 10, 3, -1),
    Sketcher.Constraint("Symmetric", 0, 3, 12, 3, -1),
    Sketcher.Constraint("Horizontal", 1, 3, 2, 3),
    Sketcher.Constraint("Horizontal", 7, 3, 8, 3),
    Sketcher.Constraint("Diameter", 0, 6.4),
    Sketcher.Constraint("Diameter", 1, 3.5),
    Sketcher.Constraint("DistanceX", 0, 3, 2, 3, 17.3),
    Sketcher.Constraint("DistanceY", 10, 3, 2, 3, 45.5),
    Sketcher.Constraint("DistanceX", 8, 3, 6, 3, 18.29),
    Sketcher.Constraint("DistanceX", 0, 3, -1, 1, 20.908),
    Sketcher.Constraint("DistanceX", -1, 1, 4, 3, 14.696),
    Sketcher.Constraint("DistanceY", -1, 1, 4, 3, 24.888),
    Sketcher.Constraint("DistanceX", -1, 1, 6, 3, 23.841),
    Sketcher.Constraint("DistanceY", 6, 3, -1, 1, 28.448),
])
pad5 = body.newObject("PartDesign::Pad", "Pad004")
pad5.Profile = sketch8
pad5.Length = 2.2

# Sketch on XZ plane
sketch9 = body.newObject("Sketcher::SketchObject", "Sketch008")
sketch9.AttachmentSupport = (doc.getObject("XZ_Plane"), [""])
sketch9.MapMode = "FlatFace"
add_polygon(sketch9, [(-6.908, 42), (-6.908, 39.25), (-1.258, 39.25), (-1.258, 42)])  # lines 0-3
sketch9.addConstraint([
    Sketcher.Constraint("Vertical", 0),
    Sketcher.Constraint("Horizontal", 1),
    Sketcher.Constraint("Vertical", 2),
    Sketcher.Constraint("Horizontal", 3),
    Sketcher.Constraint("DistanceY", -1, 1, 2, 2, 42.0),
    Sketcher.Constraint("DistanceX", 1, 1, 1, 2, 5.65),
    Sketcher.Constraint("DistanceY", 0, 2, 0, 1, 2.75),
    Sketcher.Constraint("DistanceX", 0, 2, -1, 1, 6.908),
])
pocket4 = body.newObject("PartDesign::Pocket", "Pocket003")
pocket4.Profile = sketch9
pocket4.Type = "ThroughAll"
pocket4.Midplane = True

# Sketch on YZ plane
sketch10 = body.newObject("Sketcher::SketchObject", "Sketch009")
sketch10.AttachmentSupport = (doc.getObject("YZ_Plane"), [""])
sketch10.MapMode = "FlatFace"
sketch10.AttachmentOffset = App.Placement(Vector(0, 0, 40.302), App.Rotation())
add_polygon(sketch10, [(-28.35, 46), (-33.15, 46), (-33.15, 31.2), (-28.35, 36)])  # lines 0-3
add_polygon(sketch10, [(33.15, 46), (28.35, 46), (28.35, 36), (33.15, 31.2)])  # lines 4-7
sketch10.addConstraint([
    Sketcher.Constraint("Horizontal", 0),
    Sketcher.Constraint("Vertical", 1),
    Sketcher.Constraint("Vertical", 3),
    Sketcher.Constraint("Horizontal", 4),
    Sketcher.Constraint("Vertical", 5),
    Sketcher.Constraint("Vertical", 7),
    Sketcher.Constraint("Symmetric", 3, 2, 4, 2, -2),
    Sketcher.Constraint("Symmetric", 1, 2, 6, 2, -2),
    Sketcher.Constraint("Perpendicular", 2, 6),
    Sketcher.Constraint("Horizontal", 2, 2, 5, 2),
    Sketcher.Constraint("DistanceY", 3, 1, 3, 2, 10.0),
    Sketcher.Constraint("DistanceX", 0, 2, 0, 1, 4.8),
    Sketcher.Constraint("DistanceY", -1, 1, 0, 2, 46.0),
    Sketcher.Constraint("DistanceX", 3, 2, 4, 2, 56.7),
])
pad6 = body.newObject("PartDesign::Pad", "Pad005")
pad6.Profile = sketch10
pad6.Length = 4
pad6.Reversed = True

doc.recompute()
